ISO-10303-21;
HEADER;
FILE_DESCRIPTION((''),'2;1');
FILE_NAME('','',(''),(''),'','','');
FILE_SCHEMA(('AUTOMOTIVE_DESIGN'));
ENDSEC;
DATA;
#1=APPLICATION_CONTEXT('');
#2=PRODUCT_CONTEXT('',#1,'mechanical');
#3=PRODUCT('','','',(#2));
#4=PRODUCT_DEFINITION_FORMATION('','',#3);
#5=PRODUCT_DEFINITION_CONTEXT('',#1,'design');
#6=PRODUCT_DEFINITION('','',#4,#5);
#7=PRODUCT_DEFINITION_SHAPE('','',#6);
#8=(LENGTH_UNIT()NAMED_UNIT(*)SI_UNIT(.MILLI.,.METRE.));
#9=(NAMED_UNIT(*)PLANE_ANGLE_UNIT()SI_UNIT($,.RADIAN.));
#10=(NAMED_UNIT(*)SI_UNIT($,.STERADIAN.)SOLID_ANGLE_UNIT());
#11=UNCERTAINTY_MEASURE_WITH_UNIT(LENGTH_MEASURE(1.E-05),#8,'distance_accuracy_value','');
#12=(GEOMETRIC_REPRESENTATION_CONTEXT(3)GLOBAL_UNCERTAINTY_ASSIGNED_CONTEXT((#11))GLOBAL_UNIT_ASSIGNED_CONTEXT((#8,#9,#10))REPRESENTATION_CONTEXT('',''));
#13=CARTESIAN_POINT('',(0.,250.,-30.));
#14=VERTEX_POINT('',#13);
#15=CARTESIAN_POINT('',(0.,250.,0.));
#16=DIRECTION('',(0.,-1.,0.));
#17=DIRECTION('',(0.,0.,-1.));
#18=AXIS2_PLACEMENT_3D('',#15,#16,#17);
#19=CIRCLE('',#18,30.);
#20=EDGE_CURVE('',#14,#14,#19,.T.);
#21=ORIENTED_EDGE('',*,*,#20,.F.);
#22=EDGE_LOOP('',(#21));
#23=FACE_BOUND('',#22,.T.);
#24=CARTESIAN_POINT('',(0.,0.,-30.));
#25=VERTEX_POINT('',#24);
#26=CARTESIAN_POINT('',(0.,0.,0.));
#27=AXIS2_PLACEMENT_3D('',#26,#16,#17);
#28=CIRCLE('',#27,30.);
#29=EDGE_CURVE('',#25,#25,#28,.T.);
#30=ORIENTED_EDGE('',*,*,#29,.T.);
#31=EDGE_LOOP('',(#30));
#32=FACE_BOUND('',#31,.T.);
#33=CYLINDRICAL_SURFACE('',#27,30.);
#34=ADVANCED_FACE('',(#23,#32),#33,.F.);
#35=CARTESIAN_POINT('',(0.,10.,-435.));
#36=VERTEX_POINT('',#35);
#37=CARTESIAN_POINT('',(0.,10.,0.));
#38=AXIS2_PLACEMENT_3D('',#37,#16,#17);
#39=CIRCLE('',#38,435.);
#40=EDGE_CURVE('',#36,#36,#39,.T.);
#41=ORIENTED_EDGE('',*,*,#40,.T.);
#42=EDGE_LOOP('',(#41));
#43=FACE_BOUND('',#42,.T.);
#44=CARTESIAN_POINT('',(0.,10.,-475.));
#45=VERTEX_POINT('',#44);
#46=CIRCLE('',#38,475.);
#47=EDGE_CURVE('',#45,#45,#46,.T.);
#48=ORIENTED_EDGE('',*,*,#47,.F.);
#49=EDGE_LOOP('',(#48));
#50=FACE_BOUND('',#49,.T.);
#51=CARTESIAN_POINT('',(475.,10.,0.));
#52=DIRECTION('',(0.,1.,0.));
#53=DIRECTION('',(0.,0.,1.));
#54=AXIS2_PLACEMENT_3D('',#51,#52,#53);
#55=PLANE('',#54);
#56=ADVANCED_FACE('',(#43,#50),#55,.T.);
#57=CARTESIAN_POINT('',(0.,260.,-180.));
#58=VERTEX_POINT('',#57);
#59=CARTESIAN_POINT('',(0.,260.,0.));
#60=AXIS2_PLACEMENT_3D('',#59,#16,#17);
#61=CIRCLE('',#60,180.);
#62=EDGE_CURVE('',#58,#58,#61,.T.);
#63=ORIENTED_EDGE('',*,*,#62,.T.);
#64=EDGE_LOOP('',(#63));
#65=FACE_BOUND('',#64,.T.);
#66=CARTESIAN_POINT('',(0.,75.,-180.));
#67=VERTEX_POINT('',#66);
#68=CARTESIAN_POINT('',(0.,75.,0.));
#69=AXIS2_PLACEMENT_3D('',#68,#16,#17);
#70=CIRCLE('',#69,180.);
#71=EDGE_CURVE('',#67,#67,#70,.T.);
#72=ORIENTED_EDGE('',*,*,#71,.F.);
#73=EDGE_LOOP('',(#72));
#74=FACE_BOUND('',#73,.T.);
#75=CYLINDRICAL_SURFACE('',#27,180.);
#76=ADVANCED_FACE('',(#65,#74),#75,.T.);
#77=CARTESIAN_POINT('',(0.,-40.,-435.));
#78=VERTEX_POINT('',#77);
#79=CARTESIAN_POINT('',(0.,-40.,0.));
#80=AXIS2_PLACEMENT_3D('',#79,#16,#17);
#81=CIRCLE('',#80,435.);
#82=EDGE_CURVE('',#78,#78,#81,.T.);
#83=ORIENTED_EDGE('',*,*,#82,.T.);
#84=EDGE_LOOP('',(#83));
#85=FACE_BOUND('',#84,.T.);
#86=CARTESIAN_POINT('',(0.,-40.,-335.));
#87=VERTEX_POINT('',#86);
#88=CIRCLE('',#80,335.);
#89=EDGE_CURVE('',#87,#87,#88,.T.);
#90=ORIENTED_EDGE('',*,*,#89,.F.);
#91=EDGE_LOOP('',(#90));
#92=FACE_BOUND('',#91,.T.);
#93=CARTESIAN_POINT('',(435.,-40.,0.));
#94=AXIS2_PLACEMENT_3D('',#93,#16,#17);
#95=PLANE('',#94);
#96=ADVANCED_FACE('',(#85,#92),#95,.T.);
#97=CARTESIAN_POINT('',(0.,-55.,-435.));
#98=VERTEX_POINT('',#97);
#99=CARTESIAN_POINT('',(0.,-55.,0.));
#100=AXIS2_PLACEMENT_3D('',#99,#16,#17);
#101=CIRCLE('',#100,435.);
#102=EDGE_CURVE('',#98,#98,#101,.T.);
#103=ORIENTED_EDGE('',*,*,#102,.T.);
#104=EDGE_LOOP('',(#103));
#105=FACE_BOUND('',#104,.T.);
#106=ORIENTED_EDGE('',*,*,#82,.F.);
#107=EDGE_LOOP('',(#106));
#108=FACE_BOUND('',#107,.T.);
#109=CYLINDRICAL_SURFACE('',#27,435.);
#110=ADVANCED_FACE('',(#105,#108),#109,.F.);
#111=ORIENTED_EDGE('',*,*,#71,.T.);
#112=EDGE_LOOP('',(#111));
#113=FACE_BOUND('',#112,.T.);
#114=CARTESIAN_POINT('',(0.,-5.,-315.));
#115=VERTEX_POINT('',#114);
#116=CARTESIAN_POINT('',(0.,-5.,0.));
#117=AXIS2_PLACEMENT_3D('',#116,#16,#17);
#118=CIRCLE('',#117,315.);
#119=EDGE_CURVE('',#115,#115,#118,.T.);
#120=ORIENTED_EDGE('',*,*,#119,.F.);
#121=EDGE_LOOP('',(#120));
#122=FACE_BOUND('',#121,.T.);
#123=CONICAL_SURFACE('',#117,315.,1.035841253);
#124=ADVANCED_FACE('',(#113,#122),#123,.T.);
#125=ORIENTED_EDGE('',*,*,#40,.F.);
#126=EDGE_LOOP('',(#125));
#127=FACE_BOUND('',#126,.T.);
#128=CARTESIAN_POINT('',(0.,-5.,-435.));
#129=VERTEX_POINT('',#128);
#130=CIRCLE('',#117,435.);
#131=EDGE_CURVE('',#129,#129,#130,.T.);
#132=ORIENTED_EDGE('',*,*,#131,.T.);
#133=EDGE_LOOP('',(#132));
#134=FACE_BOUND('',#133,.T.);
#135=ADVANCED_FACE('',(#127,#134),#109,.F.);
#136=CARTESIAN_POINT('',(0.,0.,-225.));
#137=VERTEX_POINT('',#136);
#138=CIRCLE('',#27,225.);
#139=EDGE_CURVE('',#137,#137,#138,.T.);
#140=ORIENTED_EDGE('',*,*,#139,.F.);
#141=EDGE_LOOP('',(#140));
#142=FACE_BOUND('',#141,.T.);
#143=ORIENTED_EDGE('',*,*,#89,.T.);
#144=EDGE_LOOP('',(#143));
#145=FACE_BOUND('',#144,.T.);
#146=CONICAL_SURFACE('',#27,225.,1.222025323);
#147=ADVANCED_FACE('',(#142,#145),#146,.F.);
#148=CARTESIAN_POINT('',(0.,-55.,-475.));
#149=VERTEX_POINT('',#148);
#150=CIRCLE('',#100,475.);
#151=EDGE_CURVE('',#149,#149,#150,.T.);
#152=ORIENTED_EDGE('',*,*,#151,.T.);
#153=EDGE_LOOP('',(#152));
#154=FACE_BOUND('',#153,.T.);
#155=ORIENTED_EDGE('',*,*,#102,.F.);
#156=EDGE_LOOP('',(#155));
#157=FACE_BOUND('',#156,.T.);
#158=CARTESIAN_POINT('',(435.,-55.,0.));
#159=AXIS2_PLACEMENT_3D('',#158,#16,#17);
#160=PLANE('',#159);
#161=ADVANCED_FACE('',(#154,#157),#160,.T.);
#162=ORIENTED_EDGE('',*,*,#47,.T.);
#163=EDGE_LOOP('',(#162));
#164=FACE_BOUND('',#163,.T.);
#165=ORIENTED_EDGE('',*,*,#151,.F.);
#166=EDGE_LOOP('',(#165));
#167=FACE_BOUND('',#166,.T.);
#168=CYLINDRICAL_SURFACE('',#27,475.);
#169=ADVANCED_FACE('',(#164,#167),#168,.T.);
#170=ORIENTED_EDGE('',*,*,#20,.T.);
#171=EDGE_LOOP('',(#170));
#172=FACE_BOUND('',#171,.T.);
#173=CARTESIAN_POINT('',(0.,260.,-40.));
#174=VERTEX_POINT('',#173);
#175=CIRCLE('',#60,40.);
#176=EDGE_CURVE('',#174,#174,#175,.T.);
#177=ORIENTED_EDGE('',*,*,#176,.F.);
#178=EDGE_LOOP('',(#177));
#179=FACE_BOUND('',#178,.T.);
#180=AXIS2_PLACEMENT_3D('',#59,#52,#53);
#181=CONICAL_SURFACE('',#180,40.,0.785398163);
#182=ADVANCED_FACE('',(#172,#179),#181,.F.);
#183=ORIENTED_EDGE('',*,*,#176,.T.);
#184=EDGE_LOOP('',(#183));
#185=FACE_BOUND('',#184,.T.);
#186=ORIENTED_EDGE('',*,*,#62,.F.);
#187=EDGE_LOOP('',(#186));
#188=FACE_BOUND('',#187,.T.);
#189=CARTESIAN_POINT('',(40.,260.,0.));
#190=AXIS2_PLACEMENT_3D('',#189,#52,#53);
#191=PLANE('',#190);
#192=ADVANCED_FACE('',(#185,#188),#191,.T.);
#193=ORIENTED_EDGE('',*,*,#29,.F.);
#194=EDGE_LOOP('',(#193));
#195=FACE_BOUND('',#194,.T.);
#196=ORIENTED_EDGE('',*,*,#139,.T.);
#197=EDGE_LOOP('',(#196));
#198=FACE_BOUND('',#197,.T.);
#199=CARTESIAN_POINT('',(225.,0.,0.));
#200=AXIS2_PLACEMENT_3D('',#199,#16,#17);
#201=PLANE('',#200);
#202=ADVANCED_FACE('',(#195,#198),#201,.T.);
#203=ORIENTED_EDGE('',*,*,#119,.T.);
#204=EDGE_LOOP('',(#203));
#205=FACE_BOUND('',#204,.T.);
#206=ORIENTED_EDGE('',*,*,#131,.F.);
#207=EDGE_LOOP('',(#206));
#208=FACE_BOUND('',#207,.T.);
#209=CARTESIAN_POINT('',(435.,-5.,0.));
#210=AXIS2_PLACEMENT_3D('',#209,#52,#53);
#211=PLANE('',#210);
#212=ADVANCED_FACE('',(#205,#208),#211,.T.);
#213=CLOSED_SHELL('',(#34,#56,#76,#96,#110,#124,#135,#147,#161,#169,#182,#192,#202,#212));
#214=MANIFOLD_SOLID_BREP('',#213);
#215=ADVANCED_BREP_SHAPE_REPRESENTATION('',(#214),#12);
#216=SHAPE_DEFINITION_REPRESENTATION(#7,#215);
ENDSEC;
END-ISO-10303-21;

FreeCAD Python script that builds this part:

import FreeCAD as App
import Part
import Sketcher

V = App.Vector
Q = App.Units.Quantity


def add_polygon(sketch, points):
    """Adds a closed chain of lines whose ends are joined by coincident constraints."""
    first, n = sketch.GeometryCount, len(points)
    for a, b in zip(points, points[1:] + points[:1]):
        sketch.addGeometry(Part.LineSegment(App.Vector(*a, 0), App.Vector(*b, 0)), False)
    for i in range(n):
        sketch.addConstraint(Sketcher.Constraint("Coincident", first + i, 2, first + (i + 1) % n, 1))

doc = App.newDocument("Part")
params = doc.addObject("Spreadsheet::Sheet", "Params")
for row, (alias, value) in enumerate([
    ("sketch1_width", "40 mm"),
    ("sketch1_width2", "120 mm"),
    ("sketch1_width3", "140 mm"),
    ("sketch1_width4", "195 mm"),
    ("sketch1_width5", "100 mm"),
    ("revolution_angle", "360 deg"),
], start=1):
    params.set(f"A{row}", alias)
    params.set(f"B{row}", "=" + value)
    params.setAlias(f"B{row}", alias)

body = doc.addObject("PartDesign::Body", "Body")

# Sketch on XY plane
sketch1 = body.newObject("Sketcher::SketchObject", "Sketch")
sketch1.AttachmentSupport = (doc.getObject("XY_Plane"), [""])
sketch1.MapMode = "FlatFace"
add_polygon(sketch1, [(435, -55), (475, -55), (475, 10), (435, 10), (435, -5), (315, -5), (180, 75), (180, 260), (40, 260), (30, 250), (30, 0), (225, 0), (335, -40), (435, -40)])  # lines 0-13
sketch1.addConstraint([
    Sketcher.Constraint("Horizontal", 0),
    Sketcher.Constraint("Vertical", 1),
    Sketcher.Constraint("Horizontal", 2),
    Sketcher.Constraint("Vertical", 3),
    Sketcher.Constraint("Horizontal", 4),
    Sketcher.Constraint("Vertical", 6),
    Sketcher.Constraint("Horizontal", 7),
    Sketcher.Constraint("Vertical", 9),
    Sketcher.Constraint("Horizontal", 10),
    Sketcher.Constraint("Horizontal", 12),
    Sketcher.Constraint("Vertical", 13),
    Sketcher.Constraint("PointOnObject", 9, 2, -1),
    Sketcher.Constraint("Vertical", 3, 2, 12, 2),
    Sketcher.Constraint("Equal", 3, 13),
    Sketcher.Constraint("DistanceX", 0, 1, 0, 2, Q("40 mm")),
    Sketcher.Constraint("DistanceX", 4, 2, 4, 1, Q("120 mm")),
    Sketcher.Constraint("DistanceX", 7, 2, 7, 1, Q("140 mm")),
    Sketcher.Constraint("DistanceX", 10, 1, 10, 2, Q("195 mm")),
    Sketcher.Constraint("DistanceX", 12, 1, 12, 2, Q("100 mm")),
    Sketcher.Constraint("DistanceY", 1, 1, 1, 2, Q("65 mm")),
    Sketcher.Constraint("DistanceY", 3, 2, 3, 1, Q("15 mm")),
    Sketcher.Constraint("DistanceY", 6, 1, 6, 2, Q("185 mm")),
    Sketcher.Constraint("DistanceY", 9, 2, 9, 1, Q("250 mm")),
    Sketcher.Constraint("Angle", 8, Q("-135 deg")),
    Sketcher.Constraint("DistanceX", -1, 1, 0, 2, Q("475 mm")),
    Sketcher.Constraint("DistanceY", 0, 2, -1, 1, Q("55 mm")),
    Sketcher.Constraint("DistanceX", -1, 1, 5, 2, Q("180 mm")),
    Sketcher.Constraint("DistanceY", -1, 1, 5, 2, Q("75 mm")),
])
sketch1.setExpression("Constraints[28]", "Params.sketch1_width")
sketch1.setExpression("Constraints[29]", "Params.sketch1_width2")
sketch1.setExpression("Constraints[30]", "Params.sketch1_width3")
sketch1.setExpression("Constraints[31]", "Params.sketch1_width4")
sketch1.setExpression("Constraints[32]", "Params.sketch1_width5")
revolution = body.newObject("PartDesign::Revolution", "Revolution")
revolution.Profile = sketch1
revolution.ReferenceAxis = (sketch1, ["V_Axis"])
revolution.setExpression("Angle", "Params.revolution_angle")

doc.recompute()
